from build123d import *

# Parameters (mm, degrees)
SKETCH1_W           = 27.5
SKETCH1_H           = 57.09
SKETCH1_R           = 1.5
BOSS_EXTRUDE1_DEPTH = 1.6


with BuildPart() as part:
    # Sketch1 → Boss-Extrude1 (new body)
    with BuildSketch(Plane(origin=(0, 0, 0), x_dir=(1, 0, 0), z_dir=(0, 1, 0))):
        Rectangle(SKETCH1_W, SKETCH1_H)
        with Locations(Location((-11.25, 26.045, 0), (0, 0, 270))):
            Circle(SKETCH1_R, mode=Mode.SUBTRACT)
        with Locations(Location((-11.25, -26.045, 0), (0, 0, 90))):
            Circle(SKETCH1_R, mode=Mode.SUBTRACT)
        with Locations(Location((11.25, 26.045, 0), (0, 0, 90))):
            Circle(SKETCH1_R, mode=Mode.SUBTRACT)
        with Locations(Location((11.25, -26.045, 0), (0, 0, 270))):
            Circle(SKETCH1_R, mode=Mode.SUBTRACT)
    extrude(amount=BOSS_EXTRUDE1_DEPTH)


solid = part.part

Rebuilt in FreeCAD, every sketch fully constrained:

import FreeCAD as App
import Part
import Sketcher
Q = App.Units.Quantity

doc = App.newDocument("Part")
body = doc.addObject("PartDesign::Body", "Body")

# Sketch on XZ plane
sketch1 = body.newObject("Sketcher::SketchObject", "Sketch")
sketch1.AttachmentSupport = (doc.getObject("XZ_Plane"), [""])
sketch1.MapMode = "FlatFace"
sketch1.addGeometry([
    Part.LineSegment(App.Vector(-13.8, -28.5, 0), App.Vector(-13.8, 28.5, 0)),  # 0
    Part.LineSegment(App.Vector(-13.8, 28.5, 0), App.Vector(13.8, 28.5, 0)),  # 1
    Part.LineSegment(App.Vector(13.8, 28.5, 0), App.Vector(13.8, -28.5, 0)),  # 2
    Part.LineSegment(App.Vector(13.8, -28.5, 0), App.Vector(-13.8, -28.5, 0)),  # 3
    Part.Circle(App.Vector(-11.2, 26, 0), App.Vector(0, 0, 1), 1.5),  # 4
    Part.Circle(App.Vector(11.2, 26, 0), App.Vector(0, 0, 1), 1.5),  # 5
    Part.Circle(App.Vector(-11.2, -26, 0), App.Vector(0, 0, 1), 1.5),  # 6
    Part.Circle(App.Vector(11.2, -26, 0), App.Vector(0, 0, 1), 1.5),  # 7
], False)
sketch1.addConstraint([
    Sketcher.Constraint("Coincident", 0, 2, 1, 1),
    Sketcher.Constraint("Coincident", 1, 2, 2, 1),
    Sketcher.Constraint("Coincident", 2, 2, 3, 1),
    Sketcher.Constraint("Coincident", 3, 2, 0, 1),
    Sketcher.Constraint("Vertical", 0),
    Sketcher.Constraint("Horizontal", 1),
    Sketcher.Constraint("Vertical", 2),
    Sketcher.Constraint("Horizontal", 3),
    Sketcher.Constraint("Equal", 4, 5),
    Sketcher.Constraint("Equal", 5, 6),
    Sketcher.Constraint("Equal", 6, 7),
    Sketcher.Constraint("Symmetric", 5, 3, 6, 3, -1, 1),
    Sketcher.Constraint("Symmetric", 4, 3, 7, 3, -1, 1),
    Sketcher.Constraint("Symmetric", 0, 2, 2, 2, -1, 1),
    Sketcher.Constraint("Symmetric", 4, 3, 5, 3, -2),
    Sketcher.Constraint("Diameter", 4, Q("3 mm")),
    Sketcher.Constraint("DistanceX", 1, 1, 1, 2, Q("27.5 mm")),
    Sketcher.Constraint("DistanceX", 0, 2, 5, 3, Q("25 mm")),
    Sketcher.Constraint("DistanceY", 0, 1, 0, 2, Q("57.09 mm")),
    Sketcher.Constraint("DistanceY", 4, 3, 0, 2, Q("2.5 mm")),
])
pad1 = body.newObject("PartDesign::Pad", "Pad")
pad1.Profile = sketch1
pad1.Length = 1.6
pad1.Reversed = True

doc.recompute()
